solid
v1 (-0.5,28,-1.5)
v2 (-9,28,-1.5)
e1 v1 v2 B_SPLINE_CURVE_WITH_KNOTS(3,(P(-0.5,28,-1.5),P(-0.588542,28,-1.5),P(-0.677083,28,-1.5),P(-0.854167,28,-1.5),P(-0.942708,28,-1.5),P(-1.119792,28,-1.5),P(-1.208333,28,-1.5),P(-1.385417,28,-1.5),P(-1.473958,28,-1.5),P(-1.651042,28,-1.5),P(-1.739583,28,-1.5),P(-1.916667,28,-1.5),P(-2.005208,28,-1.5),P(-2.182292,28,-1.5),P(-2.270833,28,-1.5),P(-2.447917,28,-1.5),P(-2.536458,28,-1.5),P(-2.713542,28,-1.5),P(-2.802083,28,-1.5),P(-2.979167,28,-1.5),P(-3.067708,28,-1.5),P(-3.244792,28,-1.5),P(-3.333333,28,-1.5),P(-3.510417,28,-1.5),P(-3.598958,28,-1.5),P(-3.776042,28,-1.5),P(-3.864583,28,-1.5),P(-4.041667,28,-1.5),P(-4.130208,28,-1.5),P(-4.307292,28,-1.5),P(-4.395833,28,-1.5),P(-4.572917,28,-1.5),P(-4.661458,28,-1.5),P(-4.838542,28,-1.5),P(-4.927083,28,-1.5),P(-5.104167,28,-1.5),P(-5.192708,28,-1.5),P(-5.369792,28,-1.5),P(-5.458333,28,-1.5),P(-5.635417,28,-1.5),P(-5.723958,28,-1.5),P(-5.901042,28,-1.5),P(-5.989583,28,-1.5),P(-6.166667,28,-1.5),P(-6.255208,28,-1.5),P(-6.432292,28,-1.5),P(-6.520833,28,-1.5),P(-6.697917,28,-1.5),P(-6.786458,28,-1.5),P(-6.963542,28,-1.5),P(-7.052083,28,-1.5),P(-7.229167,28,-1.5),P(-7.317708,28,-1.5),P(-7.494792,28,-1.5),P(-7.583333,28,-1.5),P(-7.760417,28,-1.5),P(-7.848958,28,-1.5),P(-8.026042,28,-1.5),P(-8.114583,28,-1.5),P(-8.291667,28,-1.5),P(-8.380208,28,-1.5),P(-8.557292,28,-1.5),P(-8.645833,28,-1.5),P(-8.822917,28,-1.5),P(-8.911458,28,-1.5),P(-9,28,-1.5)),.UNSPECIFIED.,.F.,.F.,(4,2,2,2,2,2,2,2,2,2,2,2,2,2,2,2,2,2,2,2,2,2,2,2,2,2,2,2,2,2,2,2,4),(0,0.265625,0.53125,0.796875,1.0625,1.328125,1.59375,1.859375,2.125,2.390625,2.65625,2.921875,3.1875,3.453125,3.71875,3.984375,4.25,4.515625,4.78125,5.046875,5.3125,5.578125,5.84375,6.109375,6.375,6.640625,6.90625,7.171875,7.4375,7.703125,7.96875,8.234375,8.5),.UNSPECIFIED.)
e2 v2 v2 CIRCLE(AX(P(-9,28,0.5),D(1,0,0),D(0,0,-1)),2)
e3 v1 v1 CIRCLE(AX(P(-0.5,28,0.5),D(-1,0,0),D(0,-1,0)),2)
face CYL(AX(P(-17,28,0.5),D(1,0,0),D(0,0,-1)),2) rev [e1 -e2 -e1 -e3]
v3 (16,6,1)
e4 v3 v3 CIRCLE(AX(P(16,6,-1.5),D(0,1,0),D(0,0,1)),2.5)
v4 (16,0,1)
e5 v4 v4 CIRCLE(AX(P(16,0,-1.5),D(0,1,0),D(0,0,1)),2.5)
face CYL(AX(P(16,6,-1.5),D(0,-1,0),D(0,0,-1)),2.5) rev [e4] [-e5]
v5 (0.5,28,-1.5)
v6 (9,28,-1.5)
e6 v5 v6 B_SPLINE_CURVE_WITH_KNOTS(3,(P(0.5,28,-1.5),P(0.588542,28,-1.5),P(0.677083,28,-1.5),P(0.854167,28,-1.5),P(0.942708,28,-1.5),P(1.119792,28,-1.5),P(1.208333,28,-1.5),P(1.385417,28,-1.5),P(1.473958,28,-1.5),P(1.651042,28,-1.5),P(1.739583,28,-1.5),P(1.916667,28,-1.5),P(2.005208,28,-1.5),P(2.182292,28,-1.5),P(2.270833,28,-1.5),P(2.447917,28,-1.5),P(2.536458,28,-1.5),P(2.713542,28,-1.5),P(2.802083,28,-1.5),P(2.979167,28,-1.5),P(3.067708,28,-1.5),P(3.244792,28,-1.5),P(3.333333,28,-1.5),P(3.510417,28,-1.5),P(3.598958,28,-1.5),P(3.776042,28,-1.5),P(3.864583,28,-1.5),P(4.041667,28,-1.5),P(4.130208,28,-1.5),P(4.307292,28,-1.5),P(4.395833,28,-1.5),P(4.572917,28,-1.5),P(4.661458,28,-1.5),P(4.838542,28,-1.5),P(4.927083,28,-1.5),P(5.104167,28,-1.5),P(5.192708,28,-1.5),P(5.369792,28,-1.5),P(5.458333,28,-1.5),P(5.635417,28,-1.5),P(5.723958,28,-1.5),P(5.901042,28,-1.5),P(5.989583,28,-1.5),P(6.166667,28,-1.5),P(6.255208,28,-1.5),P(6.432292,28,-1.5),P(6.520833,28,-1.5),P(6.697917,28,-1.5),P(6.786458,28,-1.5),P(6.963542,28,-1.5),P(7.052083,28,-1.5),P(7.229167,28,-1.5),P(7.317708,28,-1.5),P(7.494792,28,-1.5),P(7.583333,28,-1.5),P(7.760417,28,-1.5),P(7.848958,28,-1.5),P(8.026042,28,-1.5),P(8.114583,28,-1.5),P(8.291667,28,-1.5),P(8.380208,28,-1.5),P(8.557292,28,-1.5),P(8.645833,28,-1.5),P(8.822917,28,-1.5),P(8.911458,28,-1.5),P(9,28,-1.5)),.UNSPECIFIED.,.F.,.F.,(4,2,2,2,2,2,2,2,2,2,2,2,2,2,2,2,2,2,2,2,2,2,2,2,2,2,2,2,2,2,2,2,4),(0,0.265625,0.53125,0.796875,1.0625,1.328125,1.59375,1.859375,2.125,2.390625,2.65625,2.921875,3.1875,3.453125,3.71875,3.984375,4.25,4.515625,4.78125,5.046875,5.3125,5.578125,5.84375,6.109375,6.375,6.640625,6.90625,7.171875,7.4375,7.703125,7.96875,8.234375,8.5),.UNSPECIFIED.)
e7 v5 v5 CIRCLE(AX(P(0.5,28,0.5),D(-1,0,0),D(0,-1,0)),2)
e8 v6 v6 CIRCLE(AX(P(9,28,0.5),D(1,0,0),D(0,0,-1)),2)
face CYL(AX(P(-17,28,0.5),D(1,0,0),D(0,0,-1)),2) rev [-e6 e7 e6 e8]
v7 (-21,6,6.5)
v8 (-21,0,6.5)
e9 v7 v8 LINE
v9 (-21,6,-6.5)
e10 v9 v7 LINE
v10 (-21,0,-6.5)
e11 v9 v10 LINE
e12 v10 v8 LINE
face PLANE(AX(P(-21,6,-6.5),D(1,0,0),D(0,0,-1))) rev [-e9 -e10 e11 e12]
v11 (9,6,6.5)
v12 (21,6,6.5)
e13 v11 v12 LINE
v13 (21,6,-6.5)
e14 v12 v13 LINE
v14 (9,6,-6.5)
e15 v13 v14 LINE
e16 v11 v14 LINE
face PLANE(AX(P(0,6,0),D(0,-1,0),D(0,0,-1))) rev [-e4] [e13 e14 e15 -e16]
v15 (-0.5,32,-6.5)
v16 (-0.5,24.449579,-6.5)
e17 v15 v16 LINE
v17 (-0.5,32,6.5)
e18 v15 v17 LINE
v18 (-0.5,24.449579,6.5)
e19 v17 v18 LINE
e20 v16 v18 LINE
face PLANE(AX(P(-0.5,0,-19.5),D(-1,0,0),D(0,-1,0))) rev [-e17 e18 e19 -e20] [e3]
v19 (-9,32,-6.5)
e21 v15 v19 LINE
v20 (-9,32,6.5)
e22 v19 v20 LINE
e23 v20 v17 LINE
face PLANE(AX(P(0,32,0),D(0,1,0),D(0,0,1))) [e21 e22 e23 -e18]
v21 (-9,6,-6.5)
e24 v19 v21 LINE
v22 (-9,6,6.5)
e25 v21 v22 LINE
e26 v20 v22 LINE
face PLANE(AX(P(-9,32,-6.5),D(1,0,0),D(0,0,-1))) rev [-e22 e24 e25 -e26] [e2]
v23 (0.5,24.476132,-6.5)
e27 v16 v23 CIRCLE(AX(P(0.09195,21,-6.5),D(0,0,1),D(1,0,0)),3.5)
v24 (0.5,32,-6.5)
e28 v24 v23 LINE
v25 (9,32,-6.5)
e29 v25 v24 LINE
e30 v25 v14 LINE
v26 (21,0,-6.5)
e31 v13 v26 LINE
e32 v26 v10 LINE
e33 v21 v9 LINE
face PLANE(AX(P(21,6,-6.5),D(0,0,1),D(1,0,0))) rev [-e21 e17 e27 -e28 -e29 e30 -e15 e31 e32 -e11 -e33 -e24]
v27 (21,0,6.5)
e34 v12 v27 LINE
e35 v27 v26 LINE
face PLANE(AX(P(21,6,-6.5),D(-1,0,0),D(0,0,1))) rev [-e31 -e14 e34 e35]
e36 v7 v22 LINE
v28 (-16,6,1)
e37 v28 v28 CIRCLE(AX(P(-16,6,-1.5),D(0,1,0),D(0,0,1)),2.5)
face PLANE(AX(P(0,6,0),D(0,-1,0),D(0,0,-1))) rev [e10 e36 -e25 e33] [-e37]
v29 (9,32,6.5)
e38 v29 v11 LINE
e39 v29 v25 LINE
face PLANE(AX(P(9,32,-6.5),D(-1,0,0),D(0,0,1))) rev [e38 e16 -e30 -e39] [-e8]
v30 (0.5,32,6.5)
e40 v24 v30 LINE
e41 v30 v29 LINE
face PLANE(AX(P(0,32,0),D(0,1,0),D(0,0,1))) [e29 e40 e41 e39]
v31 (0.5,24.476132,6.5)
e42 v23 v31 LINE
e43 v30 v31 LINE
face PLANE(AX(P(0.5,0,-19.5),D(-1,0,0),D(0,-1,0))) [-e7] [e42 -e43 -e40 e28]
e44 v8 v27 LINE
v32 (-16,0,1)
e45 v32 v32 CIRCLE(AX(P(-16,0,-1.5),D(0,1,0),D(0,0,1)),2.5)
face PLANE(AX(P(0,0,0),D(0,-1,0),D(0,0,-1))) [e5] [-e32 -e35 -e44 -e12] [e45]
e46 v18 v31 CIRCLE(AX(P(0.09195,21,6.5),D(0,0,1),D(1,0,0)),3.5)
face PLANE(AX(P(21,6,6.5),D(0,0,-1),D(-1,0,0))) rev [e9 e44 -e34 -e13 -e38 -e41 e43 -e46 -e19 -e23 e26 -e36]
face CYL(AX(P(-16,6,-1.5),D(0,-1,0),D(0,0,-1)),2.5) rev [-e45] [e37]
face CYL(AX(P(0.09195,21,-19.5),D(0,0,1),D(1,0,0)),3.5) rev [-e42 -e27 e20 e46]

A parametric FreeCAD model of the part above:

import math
import FreeCAD as App
import Part
import Sketcher

V = App.Vector


def add_polygon(sketch, points):
    """Adds a closed chain of lines whose ends are joined by coincident constraints."""
    first, n = sketch.GeometryCount, len(points)
    for a, b in zip(points, points[1:] + points[:1]):
        sketch.addGeometry(Part.LineSegment(App.Vector(*a, 0), App.Vector(*b, 0)), False)
    for i in range(n):
        sketch.addConstraint(Sketcher.Constraint("Coincident", first + i, 2, first + (i + 1) % n, 1))

doc = App.newDocument("Part")
body = doc.addObject("PartDesign::Body", "Body")

sketch1 = body.newObject("Sketcher::SketchObject", "Sketch")
sketch1.AttachmentSupport = (doc.getObject("XZ_Plane"), [""])
sketch1.MapMode = "FlatFace"
add_polygon(sketch1, [(-21, -6.5), (-21, 6.5), (21, 6.5), (21, -6.5)])
sketch1.addGeometry(Part.Circle(V(-16, -1.5, 0), V(0, 0, 1), 2.5), False)
sketch1.addGeometry(Part.Circle(V(16, -1.5, 0), V(0, 0, 1), 2.5), False)
sketch1.addConstraint(Sketcher.Constraint("Vertical", 0))
sketch1.addConstraint(Sketcher.Constraint("Horizontal", 1))
sketch1.addConstraint(Sketcher.Constraint("Vertical", 2))
sketch1.addConstraint(Sketcher.Constraint("Horizontal", 3))
sketch1.addConstraint(Sketcher.Constraint("Equal", 4, 5))
sketch1.addConstraint(Sketcher.Constraint("Symmetric", 0, 2, 2, 2, -1, 1))
sketch1.addConstraint(Sketcher.Constraint("Symmetric", 4, 3, 5, 3, -2))
sketch1.addConstraint(Sketcher.Constraint("Diameter", 4, 5.0))
sketch1.addConstraint(Sketcher.Constraint("DistanceX", 1, 1, 1, 2, 42.0))
sketch1.addConstraint(Sketcher.Constraint("DistanceY", 0, 1, 0, 2, 13.0))
sketch1.addConstraint(Sketcher.Constraint("DistanceX", 4, 3, -1, 1, 16.0))
sketch1.addConstraint(Sketcher.Constraint("DistanceY", 4, 3, 0, 2, 8.0))
pad1 = body.newObject("PartDesign::Pad", "Pad")
pad1.Profile = sketch1
pad1.Length = 6
pad1.Reversed = True

sketch2 = body.newObject("Sketcher::SketchObject", "Sketch001")
sketch2.AttachmentSupport = (doc.getObject("XZ_Plane"), [""])
sketch2.MapMode = "FlatFace"
sketch2.AttachmentOffset = App.Placement(V(0, 0, -6), App.Rotation())
add_polygon(sketch2, [(-9, -6), (-9, 6), (9, 6), (9, -6)])
sketch2.addConstraint(Sketcher.Constraint("Vertical", 0))
sketch2.addConstraint(Sketcher.Constraint("Horizontal", 1))
sketch2.addConstraint(Sketcher.Constraint("Vertical", 2))
sketch2.addConstraint(Sketcher.Constraint("Horizontal", 3))
sketch2.addConstraint(Sketcher.Constraint("Symmetric", 0, 2, 2, 2, -1, 1))
sketch2.addConstraint(Sketcher.Constraint("DistanceX", 1, 1, 1, 2, 18.0))
sketch2.addConstraint(Sketcher.Constraint("DistanceY", 0, 1, 0, 2, 13.0))
pad2 = body.newObject("PartDesign::Pad", "Pad001")
pad2.Profile = sketch2
pad2.Length = 26
pad2.Reversed = True

sketch3 = body.newObject("Sketcher::SketchObject", "Sketch002")
sketch3.AttachmentSupport = (doc.getObject("XY_Plane"), [""])
sketch3.MapMode = "FlatFace"
sketch3.AttachmentOffset = App.Placement(V(0, 0, 6.5), App.Rotation())
sketch3.addGeometry(Part.LineSegment(V(0.5, 24.5, 0), V(0.5, 32, 0)), False)
sketch3.addGeometry(Part.LineSegment(V(0.5, 32, 0), V(-0.5, 32, 0)), False)
sketch3.addGeometry(Part.LineSegment(V(-0.5, 32, 0), V(-0.5, 24.4, 0)), False)
sketch3.addGeometry(Part.ArcOfCircle(Part.Circle(V(0.1, 21, 0), V(0, 0, 1), 3.5), math.radians(100), math.radians(443)), False)
sketch3.addConstraint(Sketcher.Constraint("Coincident", 0, 2, 1, 1))
sketch3.addConstraint(Sketcher.Constraint("Coincident", 1, 2, 2, 1))
sketch3.addConstraint(Sketcher.Constraint("Coincident", 2, 2, 3, 1))
sketch3.addConstraint(Sketcher.Constraint("Coincident", 3, 2, 0, 1))
sketch3.addConstraint(Sketcher.Constraint("Vertical", 0))
sketch3.addConstraint(Sketcher.Constraint("Horizontal", 1))
sketch3.addConstraint(Sketcher.Constraint("Vertical", 2))
sketch3.addConstraint(Sketcher.Constraint("Radius", 3, 3.5))
sketch3.addConstraint(Sketcher.Constraint("DistanceX", 1, 2, 1, 1, 1.0))
sketch3.addConstraint(Sketcher.Constraint("DistanceY", -1, 1, 3, 3, 21.0))
sketch3.addConstraint(Sketcher.Constraint("DistanceY", -1, 1, 0, 2, 32.0))
sketch3.addConstraint(Sketcher.Constraint("DistanceX", -1, 1, 0, 2, 0.5))
sketch3.addConstraint(Sketcher.Constraint("DistanceY", 2, 2, 2, 1, 7.550421))
pocket1 = body.newObject("PartDesign::Pocket", "Pocket")
pocket1.Profile = sketch3
pocket1.Length = 26

sketch4 = body.newObject("Sketcher::SketchObject", "Sketch003")
sketch4.AttachmentSupport = (doc.getObject("YZ_Plane"), [""])
sketch4.MapMode = "FlatFace"
sketch4.AttachmentOffset = App.Placement(V(0, 0, 9), App.Rotation())
sketch4.addGeometry(Part.Circle(V(28, 0.5, 0), V(0, 0, 1), 2), False)
sketch4.addConstraint(Sketcher.Constraint("Diameter", 0, 4.0))
sketch4.addConstraint(Sketcher.Constraint("DistanceX", -1, 1, 0, 3, 28.0))
sketch4.addConstraint(Sketcher.Constraint("DistanceY", -1, 1, 0, 3, 0.5))
pocket2 = body.newObject("PartDesign::Pocket", "Pocket001")
pocket2.Profile = sketch4
pocket2.Length = 26

doc.recompute()
